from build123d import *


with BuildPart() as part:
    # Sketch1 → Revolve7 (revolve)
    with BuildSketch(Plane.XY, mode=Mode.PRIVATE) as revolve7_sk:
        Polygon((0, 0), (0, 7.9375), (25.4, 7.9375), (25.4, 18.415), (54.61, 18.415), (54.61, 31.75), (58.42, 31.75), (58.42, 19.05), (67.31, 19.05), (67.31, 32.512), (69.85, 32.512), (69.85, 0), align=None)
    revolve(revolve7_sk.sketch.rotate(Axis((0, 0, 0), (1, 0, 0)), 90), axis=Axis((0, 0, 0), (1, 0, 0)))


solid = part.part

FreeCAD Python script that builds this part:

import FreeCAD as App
import Part
import Sketcher
from FreeCAD import Vector
Q = App.Units.Quantity

doc = App.newDocument("Part")
body = doc.addObject("PartDesign::Body", "Body")

# Sketch on XY plane
sketch1 = body.newObject("Sketcher::SketchObject", "Sketch")
sketch1.AttachmentSupport = (doc.getObject("XY_Plane"), [""])
sketch1.MapMode = "FlatFace"
sketch1.addGeometry([
    Part.LineSegment(Vector(0, 7.9, 0), Vector(0, 0, 0)),  # 0
    Part.LineSegment(Vector(0, 0, 0), Vector(69.8, 0, 0)),  # 1
    Part.LineSegment(Vector(69.8, 0, 0), Vector(69.8, 32.5, 0)),  # 2
    Part.LineSegment(Vector(69.8, 32.5, 0), Vector(67.3, 32.5, 0)),  # 3
    Part.LineSegment(Vector(67.3, 32.5, 0), Vector(67.3, 19.1, 0)),  # 4
    Part.LineSegment(Vector(67.3, 19.1, 0), Vector(58.4, 19.1, 0)),  # 5
    Part.LineSegment(Vector(58.4, 19.1, 0), Vector(58.4, 31.8, 0)),  # 6
    Part.LineSegment(Vector(58.4, 31.8, 0), Vector(54.6, 31.8, 0)),  # 7
    Part.LineSegment(Vector(54.6, 31.8, 0), Vector(54.6, 18.4, 0)),  # 8
    Part.LineSegment(Vector(54.6, 18.4, 0), Vector(25.4, 18.4, 0)),  # 9
    Part.LineSegment(Vector(25.4, 18.4, 0), Vector(25.4, 7.9, 0)),  # 10
    Part.LineSegment(Vector(25.4, 7.9, 0), Vector(0, 7.9, 0)),  # 11
], False)
sketch1.addConstraint([
    Sketcher.Constraint("Coincident", 0, 2, 1, 1),
    Sketcher.Constraint("Coincident", 1, 2, 2, 1),
    Sketcher.Constraint("Coincident", 2, 2, 3, 1),
    Sketcher.Constraint("Coincident", 3, 2, 4, 1),
    Sketcher.Constraint("Coincident", 4, 2, 5, 1),
    Sketcher.Constraint("Coincident", 5, 2, 6, 1),
    Sketcher.Constraint("Coincident", 6, 2, 7, 1),
    Sketcher.Constraint("Coincident", 7, 2, 8, 1),
    Sketcher.Constraint("Coincident", 8, 2, 9, 1),
    Sketcher.Constraint("Coincident", 9, 2, 10, 1),
    Sketcher.Constraint("Coincident", 10, 2, 11, 1),
    Sketcher.Constraint("Coincident", 11, 2, 0, 1),
    Sketcher.Constraint("Vertical", 0),
    Sketcher.Constraint("Horizontal", 1),
    Sketcher.Constraint("Vertical", 2),
    Sketcher.Constraint("Horizontal", 3),
    Sketcher.Constraint("Vertical", 4),
    Sketcher.Constraint("Horizontal", 5),
    Sketcher.Constraint("Vertical", 6),
    Sketcher.Constraint("Horizontal", 7),
    Sketcher.Constraint("Vertical", 8),
    Sketcher.Constraint("Horizontal", 9),
    Sketcher.Constraint("Vertical", 10),
    Sketcher.Constraint("Horizontal", 11),
    Sketcher.Constraint("Coincident", 0, 2, -1, 1),
    Sketcher.Constraint("DistanceX", 11, 2, 11, 1, Q("1 in")),
    Sketcher.Constraint("DistanceX", 3, 2, 3, 1, Q("0.1 in")),
    Sketcher.Constraint("DistanceY", 6, 1, 6, 2, Q("0.5 in")),
    Sketcher.Constraint("DistanceX", 1, 1, 1, 2, Q("2.75 in")),
    Sketcher.Constraint("DistanceX", 5, 2, 5, 1, Q("0.35 in")),
    Sketcher.Constraint("DistanceX", 7, 2, 7, 1, Q("0.15 in")),
    Sketcher.Constraint("DistanceY", 2, 1, 2, 2, Q("1.28 in")),
    Sketcher.Constraint("DistanceY", 4, 2, 4, 1, Q("0.53 in")),
    Sketcher.Constraint("DistanceY", 0, 2, 0, 1, Q("0.3125 in")),
    Sketcher.Constraint("DistanceY", 8, 2, 8, 1, Q("0.525 in")),
])
revolution = body.newObject("PartDesign::Revolution", "Revolution")
revolution.Profile = sketch1
revolution.ReferenceAxis = (sketch1, ["H_Axis"])
revolution.Angle = 360

doc.recompute()
